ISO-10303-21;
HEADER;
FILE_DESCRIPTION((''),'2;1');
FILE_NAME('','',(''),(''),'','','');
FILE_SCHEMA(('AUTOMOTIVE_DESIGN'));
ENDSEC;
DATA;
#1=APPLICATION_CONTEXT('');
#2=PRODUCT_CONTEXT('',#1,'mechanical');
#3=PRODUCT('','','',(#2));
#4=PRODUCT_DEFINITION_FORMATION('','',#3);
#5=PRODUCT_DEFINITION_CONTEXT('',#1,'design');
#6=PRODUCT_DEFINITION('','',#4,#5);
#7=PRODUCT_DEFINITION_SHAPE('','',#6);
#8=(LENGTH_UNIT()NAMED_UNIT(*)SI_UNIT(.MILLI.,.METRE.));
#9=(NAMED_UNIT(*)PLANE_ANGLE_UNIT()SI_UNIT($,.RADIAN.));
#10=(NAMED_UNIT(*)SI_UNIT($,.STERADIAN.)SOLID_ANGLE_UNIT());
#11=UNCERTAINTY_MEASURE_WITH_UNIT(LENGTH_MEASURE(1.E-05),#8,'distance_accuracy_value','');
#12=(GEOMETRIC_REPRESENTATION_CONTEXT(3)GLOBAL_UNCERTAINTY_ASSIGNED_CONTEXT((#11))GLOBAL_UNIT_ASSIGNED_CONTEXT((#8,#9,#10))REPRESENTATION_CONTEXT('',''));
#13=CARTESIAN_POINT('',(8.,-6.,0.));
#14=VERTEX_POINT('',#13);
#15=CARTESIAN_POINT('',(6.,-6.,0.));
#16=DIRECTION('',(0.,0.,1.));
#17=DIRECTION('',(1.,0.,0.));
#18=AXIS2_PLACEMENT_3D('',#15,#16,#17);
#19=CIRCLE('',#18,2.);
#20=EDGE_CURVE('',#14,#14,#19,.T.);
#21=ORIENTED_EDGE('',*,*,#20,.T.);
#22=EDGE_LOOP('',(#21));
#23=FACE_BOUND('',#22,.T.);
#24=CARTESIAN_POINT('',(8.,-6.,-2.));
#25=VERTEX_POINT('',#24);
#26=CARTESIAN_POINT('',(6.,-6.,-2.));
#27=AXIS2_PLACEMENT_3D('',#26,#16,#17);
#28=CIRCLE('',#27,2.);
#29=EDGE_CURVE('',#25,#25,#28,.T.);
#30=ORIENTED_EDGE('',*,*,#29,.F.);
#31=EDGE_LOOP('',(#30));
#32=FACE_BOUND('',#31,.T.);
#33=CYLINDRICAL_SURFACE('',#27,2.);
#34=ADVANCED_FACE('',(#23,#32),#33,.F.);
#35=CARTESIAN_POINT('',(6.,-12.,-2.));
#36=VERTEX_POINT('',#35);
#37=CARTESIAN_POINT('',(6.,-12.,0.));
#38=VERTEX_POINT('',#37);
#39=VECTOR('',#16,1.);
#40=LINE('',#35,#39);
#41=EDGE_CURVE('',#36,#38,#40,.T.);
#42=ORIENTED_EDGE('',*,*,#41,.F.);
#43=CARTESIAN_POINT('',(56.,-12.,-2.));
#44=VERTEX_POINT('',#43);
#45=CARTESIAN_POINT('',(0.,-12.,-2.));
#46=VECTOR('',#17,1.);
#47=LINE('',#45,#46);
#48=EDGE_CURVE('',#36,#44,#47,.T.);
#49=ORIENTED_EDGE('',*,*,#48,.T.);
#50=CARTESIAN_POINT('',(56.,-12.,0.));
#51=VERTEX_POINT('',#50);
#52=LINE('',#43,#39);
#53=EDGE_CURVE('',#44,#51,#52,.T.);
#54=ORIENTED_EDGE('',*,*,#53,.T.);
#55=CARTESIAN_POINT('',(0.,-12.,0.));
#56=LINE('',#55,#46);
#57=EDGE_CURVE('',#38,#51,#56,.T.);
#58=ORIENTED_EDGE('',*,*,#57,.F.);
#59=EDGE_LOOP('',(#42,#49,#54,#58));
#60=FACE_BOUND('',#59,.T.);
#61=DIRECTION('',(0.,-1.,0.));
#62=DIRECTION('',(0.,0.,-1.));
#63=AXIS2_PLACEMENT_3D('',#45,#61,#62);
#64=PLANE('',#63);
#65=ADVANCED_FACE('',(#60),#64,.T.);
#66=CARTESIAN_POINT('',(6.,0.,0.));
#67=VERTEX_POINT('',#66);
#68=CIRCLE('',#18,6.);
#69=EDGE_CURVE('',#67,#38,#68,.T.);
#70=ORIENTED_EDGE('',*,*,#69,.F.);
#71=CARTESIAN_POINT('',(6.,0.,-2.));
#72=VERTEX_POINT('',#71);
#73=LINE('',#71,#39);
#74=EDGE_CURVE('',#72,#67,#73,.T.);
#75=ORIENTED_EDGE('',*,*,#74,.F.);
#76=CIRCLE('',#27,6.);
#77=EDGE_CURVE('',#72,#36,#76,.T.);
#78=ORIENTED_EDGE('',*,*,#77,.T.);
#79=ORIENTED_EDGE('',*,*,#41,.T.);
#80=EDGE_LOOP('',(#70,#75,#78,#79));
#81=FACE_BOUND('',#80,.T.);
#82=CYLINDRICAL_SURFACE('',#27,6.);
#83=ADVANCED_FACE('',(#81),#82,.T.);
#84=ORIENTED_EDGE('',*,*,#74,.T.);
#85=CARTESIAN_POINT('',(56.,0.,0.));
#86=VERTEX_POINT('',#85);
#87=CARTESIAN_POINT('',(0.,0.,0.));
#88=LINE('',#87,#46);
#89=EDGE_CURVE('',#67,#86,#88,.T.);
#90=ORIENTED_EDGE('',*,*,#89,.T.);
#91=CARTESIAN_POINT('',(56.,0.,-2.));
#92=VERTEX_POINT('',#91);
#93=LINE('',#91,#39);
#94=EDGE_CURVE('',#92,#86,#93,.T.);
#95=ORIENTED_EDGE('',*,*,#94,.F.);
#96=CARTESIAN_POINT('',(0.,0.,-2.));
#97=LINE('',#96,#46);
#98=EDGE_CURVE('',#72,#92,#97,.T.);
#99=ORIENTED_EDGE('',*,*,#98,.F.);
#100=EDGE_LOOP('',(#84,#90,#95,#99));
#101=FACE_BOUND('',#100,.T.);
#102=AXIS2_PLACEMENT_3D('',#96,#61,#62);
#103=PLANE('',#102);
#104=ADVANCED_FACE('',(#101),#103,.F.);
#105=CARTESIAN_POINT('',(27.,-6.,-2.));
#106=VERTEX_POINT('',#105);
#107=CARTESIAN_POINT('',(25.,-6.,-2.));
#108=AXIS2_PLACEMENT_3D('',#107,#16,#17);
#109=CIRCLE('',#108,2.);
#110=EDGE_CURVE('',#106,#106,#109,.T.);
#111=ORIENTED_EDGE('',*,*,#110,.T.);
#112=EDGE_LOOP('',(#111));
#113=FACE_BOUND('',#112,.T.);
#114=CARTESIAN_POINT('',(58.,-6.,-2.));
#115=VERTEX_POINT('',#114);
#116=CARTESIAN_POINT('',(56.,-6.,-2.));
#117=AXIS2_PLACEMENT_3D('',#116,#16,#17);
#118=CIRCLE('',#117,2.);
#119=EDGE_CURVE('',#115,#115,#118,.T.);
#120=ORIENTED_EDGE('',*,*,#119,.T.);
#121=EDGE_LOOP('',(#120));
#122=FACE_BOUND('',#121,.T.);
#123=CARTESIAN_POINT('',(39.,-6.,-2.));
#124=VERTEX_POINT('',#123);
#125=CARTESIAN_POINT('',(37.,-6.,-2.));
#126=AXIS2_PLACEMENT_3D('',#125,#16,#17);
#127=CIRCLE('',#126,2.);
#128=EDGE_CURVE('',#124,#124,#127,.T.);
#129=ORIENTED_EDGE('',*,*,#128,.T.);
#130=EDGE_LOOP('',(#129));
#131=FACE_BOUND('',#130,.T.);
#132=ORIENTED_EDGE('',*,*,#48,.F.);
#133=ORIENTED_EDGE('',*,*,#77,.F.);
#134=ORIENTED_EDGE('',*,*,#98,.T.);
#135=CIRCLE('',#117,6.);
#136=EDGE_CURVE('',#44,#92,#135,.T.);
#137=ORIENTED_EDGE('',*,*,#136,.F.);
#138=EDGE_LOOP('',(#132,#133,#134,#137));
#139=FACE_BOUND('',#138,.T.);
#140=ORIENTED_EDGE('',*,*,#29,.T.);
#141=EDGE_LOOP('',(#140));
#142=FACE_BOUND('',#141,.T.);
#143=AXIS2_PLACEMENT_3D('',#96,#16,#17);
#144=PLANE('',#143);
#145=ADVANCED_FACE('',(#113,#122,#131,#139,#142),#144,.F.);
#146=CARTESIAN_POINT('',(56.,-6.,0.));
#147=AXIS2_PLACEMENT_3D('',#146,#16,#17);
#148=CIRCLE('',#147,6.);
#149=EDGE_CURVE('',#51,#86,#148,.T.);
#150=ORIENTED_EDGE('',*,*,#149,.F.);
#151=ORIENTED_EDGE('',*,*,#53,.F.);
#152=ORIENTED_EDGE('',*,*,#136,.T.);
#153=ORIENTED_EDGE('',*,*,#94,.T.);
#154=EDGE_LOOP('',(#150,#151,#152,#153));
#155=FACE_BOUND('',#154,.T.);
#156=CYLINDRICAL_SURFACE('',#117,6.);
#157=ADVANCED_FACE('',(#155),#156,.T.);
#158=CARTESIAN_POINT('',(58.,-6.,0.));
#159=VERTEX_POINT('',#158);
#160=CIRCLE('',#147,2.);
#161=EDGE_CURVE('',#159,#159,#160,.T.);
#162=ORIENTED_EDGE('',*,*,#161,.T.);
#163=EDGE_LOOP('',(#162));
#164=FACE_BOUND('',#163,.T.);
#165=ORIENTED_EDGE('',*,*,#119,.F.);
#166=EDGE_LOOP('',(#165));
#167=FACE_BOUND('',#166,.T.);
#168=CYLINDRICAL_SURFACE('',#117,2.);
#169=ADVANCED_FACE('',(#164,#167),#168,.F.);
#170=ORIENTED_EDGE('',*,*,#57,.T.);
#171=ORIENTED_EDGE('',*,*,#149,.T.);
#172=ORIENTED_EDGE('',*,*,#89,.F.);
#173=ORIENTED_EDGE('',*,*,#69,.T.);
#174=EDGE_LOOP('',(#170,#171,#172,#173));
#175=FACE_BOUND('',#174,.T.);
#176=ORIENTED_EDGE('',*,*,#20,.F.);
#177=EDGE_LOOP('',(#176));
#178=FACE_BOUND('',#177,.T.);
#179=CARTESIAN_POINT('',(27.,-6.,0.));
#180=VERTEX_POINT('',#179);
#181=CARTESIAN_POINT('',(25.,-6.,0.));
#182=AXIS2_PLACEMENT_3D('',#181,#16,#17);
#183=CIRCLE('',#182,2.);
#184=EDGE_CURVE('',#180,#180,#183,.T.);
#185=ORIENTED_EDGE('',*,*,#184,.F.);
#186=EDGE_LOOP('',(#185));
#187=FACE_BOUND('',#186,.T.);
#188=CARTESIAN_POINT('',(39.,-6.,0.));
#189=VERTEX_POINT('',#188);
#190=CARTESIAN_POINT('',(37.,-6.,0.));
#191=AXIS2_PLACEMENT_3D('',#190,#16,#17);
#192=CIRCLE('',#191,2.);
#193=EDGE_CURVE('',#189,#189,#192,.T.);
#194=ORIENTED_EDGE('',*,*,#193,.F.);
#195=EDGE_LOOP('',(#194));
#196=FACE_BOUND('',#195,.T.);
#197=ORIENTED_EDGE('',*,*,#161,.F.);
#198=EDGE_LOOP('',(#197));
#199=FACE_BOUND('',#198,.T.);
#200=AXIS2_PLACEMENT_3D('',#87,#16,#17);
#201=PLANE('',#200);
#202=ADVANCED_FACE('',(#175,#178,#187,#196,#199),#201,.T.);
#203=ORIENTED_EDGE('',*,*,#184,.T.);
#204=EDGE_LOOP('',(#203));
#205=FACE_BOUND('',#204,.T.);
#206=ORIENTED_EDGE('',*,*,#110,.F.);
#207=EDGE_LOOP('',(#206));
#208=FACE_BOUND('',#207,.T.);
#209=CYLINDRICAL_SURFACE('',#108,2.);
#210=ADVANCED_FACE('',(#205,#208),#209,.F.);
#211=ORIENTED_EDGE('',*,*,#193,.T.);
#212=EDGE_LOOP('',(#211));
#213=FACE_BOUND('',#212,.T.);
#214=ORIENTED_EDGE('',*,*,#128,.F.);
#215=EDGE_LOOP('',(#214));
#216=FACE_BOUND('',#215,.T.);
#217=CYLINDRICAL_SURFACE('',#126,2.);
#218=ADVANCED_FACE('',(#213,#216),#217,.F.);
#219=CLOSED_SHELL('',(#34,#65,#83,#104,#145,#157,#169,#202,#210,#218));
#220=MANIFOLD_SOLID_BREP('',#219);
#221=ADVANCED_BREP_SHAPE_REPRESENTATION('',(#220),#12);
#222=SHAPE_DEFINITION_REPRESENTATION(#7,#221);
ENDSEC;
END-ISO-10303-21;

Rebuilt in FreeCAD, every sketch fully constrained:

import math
import FreeCAD as App
import Part
import Sketcher

V = App.Vector
Q = App.Units.Quantity

doc = App.newDocument("Part")
body = doc.addObject("PartDesign::Body", "Body")

# Sketch on XY plane
sketch1 = body.newObject("Sketcher::SketchObject", "Sketch")
sketch1.AttachmentSupport = (doc.getObject("XY_Plane"), [""])
sketch1.MapMode = "FlatFace"
sketch1.addGeometry([
    Part.LineSegment(V(6, -12, 0), V(56, -12, 0)),  # 0
    Part.ArcOfCircle(Part.Circle(V(56, -6, 0), V(0, 0, 1), 6), math.radians(-90), math.radians(90)),  # 1
    Part.LineSegment(V(56, 0, 0), V(6, 0, 0)),  # 2
    Part.ArcOfCircle(Part.Circle(V(6, -6, 0), V(0, 0, 1), 6), math.radians(90), math.radians(270)),  # 3
    Part.Circle(V(6, -6, 0), V(0, 0, 1), 2),  # 4
    Part.Circle(V(25, -6, 0), V(0, 0, 1), 2),  # 5
    Part.Circle(V(37, -6, 0), V(0, 0, 1), 2),  # 6
    Part.Circle(V(56, -6, 0), V(0, 0, 1), 2),  # 7
], False)
sketch1.addConstraint([
    Sketcher.Constraint("Tangent", 0, 2, 1, 1),
    Sketcher.Constraint("Tangent", 1, 2, 2, 1),
    Sketcher.Constraint("Tangent", 2, 2, 3, 1),
    Sketcher.Constraint("Tangent", 3, 2, 0, 1),
    Sketcher.Constraint("Horizontal", 0),
    Sketcher.Constraint("Horizontal", 2),
    Sketcher.Constraint("Coincident", 4, 3, 3, 3),
    Sketcher.Constraint("Coincident", 7, 3, 1, 3),
    Sketcher.Constraint("Equal", 4, 5),
    Sketcher.Constraint("Equal", 5, 6),
    Sketcher.Constraint("Equal", 6, 7),
    Sketcher.Constraint("PointOnObject", 1, 2, -1),
    Sketcher.Constraint("Horizontal", 4, 3, 5, 3),
    Sketcher.Constraint("Horizontal", 5, 3, 6, 3),
    Sketcher.Constraint("Diameter", 4, Q("4 mm")),
    Sketcher.Constraint("Radius", 1, Q("6 mm")),
    Sketcher.Constraint("DistanceX", 0, 1, 0, 2, Q("50 mm")),
    Sketcher.Constraint("DistanceX", -1, 1, 1, 3, Q("56 mm")),
    Sketcher.Constraint("DistanceX", -1, 1, 5, 3, Q("25 mm")),
    Sketcher.Constraint("DistanceX", -1, 1, 6, 3, Q("37 mm")),
])
pad1 = body.newObject("PartDesign::Pad", "Pad")
pad1.Profile = sketch1
pad1.Length = 2
pad1.Reversed = True

doc.recompute()
